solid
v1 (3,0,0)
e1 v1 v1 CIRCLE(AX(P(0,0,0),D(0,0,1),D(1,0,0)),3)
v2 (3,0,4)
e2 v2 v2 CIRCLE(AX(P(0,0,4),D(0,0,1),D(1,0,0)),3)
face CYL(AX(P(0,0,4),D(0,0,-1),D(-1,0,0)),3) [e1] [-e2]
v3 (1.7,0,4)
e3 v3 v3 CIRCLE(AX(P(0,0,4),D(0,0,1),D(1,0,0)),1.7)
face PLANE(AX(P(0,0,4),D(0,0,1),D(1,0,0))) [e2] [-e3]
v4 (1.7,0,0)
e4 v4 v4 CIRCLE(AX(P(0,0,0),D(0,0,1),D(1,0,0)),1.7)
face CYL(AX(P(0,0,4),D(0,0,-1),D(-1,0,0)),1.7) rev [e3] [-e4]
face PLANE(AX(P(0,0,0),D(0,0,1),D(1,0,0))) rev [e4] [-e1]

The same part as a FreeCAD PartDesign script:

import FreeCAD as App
import Part
import Sketcher

doc = App.newDocument("Part")
body = doc.addObject("PartDesign::Body", "Body")

sketch1 = body.newObject("Sketcher::SketchObject", "Sketch")
sketch1.AttachmentSupport = (doc.getObject("XY_Plane"), [""])
sketch1.MapMode = "FlatFace"
sketch1.addGeometry([
    Part.Circle(App.Vector(0, 0, 0), App.Vector(0, 0, 1), 3),
    Part.Circle(App.Vector(0, 0, 0), App.Vector(0, 0, 1), 1.7),
], False)
sketch1.addConstraint([
    Sketcher.Constraint("Coincident", 0, 3, -1, 1),
    Sketcher.Constraint("Coincident", 1, 3, -1, 1),
    Sketcher.Constraint("Diameter", 0, 6.0),
    Sketcher.Constraint("Diameter", 1, 3.4),
])
pad1 = body.newObject("PartDesign::Pad", "Pad")
pad1.Profile = sketch1
pad1.Length = 4

doc.recompute()
